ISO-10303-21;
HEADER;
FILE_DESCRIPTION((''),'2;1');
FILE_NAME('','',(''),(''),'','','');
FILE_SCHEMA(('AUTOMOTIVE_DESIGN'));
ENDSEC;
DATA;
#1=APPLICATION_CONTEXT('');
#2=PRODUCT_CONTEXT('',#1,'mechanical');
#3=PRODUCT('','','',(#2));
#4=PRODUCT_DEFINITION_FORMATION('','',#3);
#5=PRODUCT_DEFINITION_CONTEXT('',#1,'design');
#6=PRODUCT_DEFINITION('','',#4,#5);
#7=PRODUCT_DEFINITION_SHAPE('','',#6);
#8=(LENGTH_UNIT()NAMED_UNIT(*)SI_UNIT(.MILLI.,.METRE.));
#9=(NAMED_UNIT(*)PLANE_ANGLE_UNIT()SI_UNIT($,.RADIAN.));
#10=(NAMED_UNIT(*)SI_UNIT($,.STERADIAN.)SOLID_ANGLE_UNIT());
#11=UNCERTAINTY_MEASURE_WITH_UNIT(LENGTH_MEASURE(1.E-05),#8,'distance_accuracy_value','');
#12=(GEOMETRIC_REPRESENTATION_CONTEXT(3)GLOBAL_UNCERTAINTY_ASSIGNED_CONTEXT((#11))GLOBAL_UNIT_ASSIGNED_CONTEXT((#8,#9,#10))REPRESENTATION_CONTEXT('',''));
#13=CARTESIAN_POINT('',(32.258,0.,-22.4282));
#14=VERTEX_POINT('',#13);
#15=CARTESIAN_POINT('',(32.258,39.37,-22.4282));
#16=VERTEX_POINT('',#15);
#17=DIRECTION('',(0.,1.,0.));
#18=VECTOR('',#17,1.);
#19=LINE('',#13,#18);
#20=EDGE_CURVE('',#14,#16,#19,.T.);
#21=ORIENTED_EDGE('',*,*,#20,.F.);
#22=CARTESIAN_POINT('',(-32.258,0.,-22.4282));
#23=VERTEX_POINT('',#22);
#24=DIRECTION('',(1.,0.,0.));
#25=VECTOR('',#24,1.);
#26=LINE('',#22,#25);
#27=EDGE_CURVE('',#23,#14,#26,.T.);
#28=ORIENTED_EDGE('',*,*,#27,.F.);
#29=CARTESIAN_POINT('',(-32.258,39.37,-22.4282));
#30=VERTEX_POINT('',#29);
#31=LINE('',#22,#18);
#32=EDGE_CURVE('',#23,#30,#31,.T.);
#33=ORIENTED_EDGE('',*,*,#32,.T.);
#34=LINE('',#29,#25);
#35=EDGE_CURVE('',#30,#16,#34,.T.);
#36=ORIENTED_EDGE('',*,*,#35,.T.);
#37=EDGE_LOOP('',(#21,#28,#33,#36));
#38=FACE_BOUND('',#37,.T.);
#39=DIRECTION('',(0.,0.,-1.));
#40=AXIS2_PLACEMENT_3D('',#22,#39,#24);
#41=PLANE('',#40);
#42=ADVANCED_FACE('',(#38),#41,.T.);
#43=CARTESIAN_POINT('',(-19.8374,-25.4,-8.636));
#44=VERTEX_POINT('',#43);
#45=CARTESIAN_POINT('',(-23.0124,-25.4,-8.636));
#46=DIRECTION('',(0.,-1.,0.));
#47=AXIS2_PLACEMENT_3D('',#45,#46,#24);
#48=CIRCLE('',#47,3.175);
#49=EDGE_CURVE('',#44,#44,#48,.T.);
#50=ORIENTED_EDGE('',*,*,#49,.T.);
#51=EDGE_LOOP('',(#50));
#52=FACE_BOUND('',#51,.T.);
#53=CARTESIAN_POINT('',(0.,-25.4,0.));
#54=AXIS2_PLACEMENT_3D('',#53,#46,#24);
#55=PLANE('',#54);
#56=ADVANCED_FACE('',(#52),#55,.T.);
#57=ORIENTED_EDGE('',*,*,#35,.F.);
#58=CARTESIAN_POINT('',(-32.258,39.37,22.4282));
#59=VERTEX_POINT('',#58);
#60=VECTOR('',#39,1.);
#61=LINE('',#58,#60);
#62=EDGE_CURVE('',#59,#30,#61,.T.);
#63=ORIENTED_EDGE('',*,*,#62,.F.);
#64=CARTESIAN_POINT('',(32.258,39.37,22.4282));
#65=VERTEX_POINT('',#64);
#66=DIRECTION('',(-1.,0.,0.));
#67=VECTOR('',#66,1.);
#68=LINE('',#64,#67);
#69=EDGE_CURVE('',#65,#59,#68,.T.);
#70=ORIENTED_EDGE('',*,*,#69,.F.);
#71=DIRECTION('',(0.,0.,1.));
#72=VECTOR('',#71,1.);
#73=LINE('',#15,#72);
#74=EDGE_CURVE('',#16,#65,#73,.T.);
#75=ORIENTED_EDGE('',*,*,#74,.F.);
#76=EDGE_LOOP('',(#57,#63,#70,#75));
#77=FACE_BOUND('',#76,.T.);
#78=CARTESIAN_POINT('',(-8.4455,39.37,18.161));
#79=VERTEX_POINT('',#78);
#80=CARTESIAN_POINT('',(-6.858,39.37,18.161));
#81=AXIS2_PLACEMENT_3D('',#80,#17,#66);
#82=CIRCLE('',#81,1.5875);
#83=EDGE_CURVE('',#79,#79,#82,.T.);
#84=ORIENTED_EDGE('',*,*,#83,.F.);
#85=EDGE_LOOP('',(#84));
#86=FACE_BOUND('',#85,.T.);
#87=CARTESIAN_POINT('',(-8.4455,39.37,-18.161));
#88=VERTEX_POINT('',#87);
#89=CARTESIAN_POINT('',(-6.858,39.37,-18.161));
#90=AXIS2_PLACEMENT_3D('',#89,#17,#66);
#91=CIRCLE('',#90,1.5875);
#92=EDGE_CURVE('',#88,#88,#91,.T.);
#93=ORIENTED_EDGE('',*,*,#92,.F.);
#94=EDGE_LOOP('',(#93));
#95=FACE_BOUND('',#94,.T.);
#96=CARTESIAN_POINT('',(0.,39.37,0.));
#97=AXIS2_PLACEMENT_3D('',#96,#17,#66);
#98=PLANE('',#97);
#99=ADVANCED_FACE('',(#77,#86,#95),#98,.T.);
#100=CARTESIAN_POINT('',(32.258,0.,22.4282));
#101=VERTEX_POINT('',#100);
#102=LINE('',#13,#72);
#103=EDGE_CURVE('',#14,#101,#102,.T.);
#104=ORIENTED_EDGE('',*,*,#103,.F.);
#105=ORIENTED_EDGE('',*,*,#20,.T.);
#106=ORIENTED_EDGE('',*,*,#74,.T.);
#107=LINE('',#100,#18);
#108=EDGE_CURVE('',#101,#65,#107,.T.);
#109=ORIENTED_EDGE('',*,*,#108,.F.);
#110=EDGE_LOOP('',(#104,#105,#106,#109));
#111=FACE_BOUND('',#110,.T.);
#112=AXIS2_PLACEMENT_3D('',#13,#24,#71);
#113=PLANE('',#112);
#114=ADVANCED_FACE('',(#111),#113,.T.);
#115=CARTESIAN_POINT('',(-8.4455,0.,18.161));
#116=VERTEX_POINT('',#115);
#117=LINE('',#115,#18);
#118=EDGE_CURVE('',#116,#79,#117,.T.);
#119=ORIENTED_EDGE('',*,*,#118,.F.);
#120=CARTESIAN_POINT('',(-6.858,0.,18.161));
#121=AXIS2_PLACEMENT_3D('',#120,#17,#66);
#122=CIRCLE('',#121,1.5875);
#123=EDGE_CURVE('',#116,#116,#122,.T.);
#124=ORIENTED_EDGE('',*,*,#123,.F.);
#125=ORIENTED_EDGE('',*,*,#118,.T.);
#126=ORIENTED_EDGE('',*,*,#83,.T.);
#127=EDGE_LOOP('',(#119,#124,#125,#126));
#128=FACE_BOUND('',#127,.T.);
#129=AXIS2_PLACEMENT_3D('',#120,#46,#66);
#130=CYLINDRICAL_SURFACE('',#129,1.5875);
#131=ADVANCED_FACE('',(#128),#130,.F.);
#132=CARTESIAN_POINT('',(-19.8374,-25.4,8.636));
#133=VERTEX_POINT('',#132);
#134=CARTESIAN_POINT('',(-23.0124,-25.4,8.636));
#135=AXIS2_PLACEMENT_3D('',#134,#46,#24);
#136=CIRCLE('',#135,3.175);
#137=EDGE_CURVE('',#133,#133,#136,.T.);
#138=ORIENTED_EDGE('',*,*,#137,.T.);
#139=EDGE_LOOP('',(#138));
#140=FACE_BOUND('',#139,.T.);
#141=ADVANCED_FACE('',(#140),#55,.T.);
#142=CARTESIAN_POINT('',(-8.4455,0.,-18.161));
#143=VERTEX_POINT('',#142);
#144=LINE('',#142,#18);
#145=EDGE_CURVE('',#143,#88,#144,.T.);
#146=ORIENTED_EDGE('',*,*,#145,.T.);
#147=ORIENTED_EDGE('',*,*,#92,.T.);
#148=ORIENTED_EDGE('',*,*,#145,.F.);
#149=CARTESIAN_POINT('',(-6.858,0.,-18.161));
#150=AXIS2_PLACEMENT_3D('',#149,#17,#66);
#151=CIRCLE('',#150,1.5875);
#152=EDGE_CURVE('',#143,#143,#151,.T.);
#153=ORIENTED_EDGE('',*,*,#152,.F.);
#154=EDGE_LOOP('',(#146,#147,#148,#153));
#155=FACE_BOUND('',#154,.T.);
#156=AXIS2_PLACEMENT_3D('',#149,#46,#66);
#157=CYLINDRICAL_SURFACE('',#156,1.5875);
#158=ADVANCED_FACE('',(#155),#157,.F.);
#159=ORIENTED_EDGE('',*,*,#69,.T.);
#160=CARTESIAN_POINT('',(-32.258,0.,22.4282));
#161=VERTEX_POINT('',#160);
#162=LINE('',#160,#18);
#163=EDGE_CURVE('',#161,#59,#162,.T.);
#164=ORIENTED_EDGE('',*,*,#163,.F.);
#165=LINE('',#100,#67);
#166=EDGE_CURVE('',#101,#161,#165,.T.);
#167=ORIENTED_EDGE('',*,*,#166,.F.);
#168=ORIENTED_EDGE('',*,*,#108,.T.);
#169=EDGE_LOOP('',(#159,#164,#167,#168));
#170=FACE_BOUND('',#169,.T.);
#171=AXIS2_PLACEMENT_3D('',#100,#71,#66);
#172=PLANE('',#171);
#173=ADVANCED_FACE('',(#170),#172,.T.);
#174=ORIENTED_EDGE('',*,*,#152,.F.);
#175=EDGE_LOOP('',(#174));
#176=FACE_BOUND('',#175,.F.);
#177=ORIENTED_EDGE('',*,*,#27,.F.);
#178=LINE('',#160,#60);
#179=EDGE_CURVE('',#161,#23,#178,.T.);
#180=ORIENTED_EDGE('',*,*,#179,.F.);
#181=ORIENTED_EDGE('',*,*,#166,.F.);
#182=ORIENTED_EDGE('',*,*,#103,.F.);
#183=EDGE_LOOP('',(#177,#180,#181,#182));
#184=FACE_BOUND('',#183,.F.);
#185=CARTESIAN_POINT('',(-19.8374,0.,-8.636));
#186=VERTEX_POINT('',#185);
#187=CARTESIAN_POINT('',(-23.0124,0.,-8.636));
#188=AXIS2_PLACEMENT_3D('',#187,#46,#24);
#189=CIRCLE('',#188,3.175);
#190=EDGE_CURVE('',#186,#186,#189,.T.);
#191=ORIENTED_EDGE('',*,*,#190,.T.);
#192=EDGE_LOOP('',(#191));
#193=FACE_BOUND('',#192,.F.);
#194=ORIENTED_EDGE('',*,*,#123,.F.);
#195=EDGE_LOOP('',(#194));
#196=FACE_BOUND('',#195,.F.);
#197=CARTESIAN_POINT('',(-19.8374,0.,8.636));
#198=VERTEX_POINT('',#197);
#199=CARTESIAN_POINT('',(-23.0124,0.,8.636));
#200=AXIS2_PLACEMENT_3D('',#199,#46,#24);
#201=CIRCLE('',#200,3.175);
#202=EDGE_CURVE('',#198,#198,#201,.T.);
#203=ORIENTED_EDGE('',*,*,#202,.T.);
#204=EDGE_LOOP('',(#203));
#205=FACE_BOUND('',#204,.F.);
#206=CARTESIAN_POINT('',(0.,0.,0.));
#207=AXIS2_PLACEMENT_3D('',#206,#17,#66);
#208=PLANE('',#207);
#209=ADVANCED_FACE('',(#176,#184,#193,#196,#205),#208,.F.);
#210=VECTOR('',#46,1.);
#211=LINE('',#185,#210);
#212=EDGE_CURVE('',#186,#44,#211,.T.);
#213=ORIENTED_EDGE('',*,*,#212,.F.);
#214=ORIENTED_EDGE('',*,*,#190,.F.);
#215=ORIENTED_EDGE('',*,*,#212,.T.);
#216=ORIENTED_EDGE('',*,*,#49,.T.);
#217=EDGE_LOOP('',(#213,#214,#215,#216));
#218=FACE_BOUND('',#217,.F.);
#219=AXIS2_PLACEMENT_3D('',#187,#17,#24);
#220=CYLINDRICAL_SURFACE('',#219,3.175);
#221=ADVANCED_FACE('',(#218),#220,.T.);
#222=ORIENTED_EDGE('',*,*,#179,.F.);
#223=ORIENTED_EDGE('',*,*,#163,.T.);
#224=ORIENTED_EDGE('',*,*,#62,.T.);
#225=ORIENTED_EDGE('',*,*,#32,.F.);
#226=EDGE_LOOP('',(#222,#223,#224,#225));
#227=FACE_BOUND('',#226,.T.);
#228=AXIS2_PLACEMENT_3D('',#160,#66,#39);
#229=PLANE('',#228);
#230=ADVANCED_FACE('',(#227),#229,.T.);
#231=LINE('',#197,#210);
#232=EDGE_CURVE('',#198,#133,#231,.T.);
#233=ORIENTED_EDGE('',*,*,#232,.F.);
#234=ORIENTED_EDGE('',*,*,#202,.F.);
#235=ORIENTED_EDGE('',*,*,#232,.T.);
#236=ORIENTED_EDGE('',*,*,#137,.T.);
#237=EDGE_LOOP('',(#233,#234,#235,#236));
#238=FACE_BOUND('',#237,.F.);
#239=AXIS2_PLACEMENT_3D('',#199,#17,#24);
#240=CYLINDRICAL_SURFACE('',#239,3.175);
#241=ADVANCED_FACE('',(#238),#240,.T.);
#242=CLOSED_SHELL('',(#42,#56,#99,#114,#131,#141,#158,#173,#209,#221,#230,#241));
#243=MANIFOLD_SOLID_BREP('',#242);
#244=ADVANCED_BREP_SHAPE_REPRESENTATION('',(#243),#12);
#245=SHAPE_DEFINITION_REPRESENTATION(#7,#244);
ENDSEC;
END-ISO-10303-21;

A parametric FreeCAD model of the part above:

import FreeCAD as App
import Part
import Sketcher
Q = App.Units.Quantity

doc = App.newDocument("Part")
body = doc.addObject("PartDesign::Body", "Body")

# Sketch on XZ plane
sketch1 = body.newObject("Sketcher::SketchObject", "Sketch")
sketch1.AttachmentSupport = (doc.getObject("XZ_Plane"), [""])
sketch1.MapMode = "FlatFace"
sketch1.addGeometry(Part.LineSegment(App.Vector(32.258, -22.4282, 0), App.Vector(-32.258, -22.4282, 0)), False)
sketch1.addGeometry(Part.LineSegment(App.Vector(-32.258, -22.4282, 0), App.Vector(-32.258, 22.4282, 0)), False)
sketch1.addGeometry(Part.LineSegment(App.Vector(-32.258, 22.4282, 0), App.Vector(32.258, 22.4282, 0)), False)
sketch1.addGeometry(Part.LineSegment(App.Vector(32.258, 22.4282, 0), App.Vector(32.258, -22.4282, 0)), False)
sketch1.addGeometry(Part.Circle(App.Vector(-6.858, -18.161, 0), App.Vector(0, 0, 1), 1.5875), False)
sketch1.addGeometry(Part.Circle(App.Vector(-6.858, 18.161, 0), App.Vector(0, 0, 1), 1.5875), False)
sketch1.addConstraint(Sketcher.Constraint("Coincident", 0, 2, 1, 1))
sketch1.addConstraint(Sketcher.Constraint("Coincident", 1, 2, 2, 1))
sketch1.addConstraint(Sketcher.Constraint("Coincident", 2, 2, 3, 1))
sketch1.addConstraint(Sketcher.Constraint("Coincident", 3, 2, 0, 1))
sketch1.addConstraint(Sketcher.Constraint("Horizontal", 0))
sketch1.addConstraint(Sketcher.Constraint("Vertical", 1))
sketch1.addConstraint(Sketcher.Constraint("Horizontal", 2))
sketch1.addConstraint(Sketcher.Constraint("Vertical", 3))
sketch1.addConstraint(Sketcher.Constraint("Equal", 4, 5))
sketch1.addConstraint(Sketcher.Constraint("Symmetric", 0, 2, 2, 2, -1, 1))
sketch1.addConstraint(Sketcher.Constraint("Symmetric", 4, 3, 5, 3, -1))
sketch1.addConstraint(Sketcher.Constraint("Diameter", 4, Q("0.125 in")))
sketch1.addConstraint(Sketcher.Constraint("DistanceX", 0, 2, 4, 3, Q("1 in")))
sketch1.addConstraint(Sketcher.Constraint("DistanceX", 0, 2, 0, 1, Q("2.54 in")))
sketch1.addConstraint(Sketcher.Constraint("DistanceY", 1, 1, 1, 2, Q("1.766 in")))
sketch1.addConstraint(Sketcher.Constraint("DistanceY", 4, 3, 5, 3, Q("1.43 in")))
pad1 = body.newObject("PartDesign::Pad", "Pad")
pad1.Profile = sketch1
pad1.Length = Q("1.55 in")
pad1.Reversed = True

# Sketch on XZ plane
sketch2 = body.newObject("Sketcher::SketchObject", "Sketch001")
sketch2.AttachmentSupport = (doc.getObject("XZ_Plane"), [""])
sketch2.MapMode = "FlatFace"
sketch2.addGeometry(Part.Circle(App.Vector(-23.0124, -8.636, 0), App.Vector(0, 0, 1), 3.175), False)
sketch2.addGeometry(Part.Circle(App.Vector(-23.0124, 8.636, 0), App.Vector(0, 0, 1), 3.175), False)
sketch2.addConstraint(Sketcher.Constraint("Equal", 0, 1))
sketch2.addConstraint(Sketcher.Constraint("Symmetric", 0, 3, 1, 3, -1))
sketch2.addConstraint(Sketcher.Constraint("Diameter", 0, Q("0.25 in")))
sketch2.addConstraint(Sketcher.Constraint("DistanceY", 0, 3, 1, 3, Q("0.68 in")))
sketch2.addConstraint(Sketcher.Constraint("DistanceX", 0, 3, -1, 1, Q("0.906 in")))
pad2 = body.newObject("PartDesign::Pad", "Pad001")
pad2.Profile = sketch2
pad2.Length = Q("1 in")

doc.recompute()
